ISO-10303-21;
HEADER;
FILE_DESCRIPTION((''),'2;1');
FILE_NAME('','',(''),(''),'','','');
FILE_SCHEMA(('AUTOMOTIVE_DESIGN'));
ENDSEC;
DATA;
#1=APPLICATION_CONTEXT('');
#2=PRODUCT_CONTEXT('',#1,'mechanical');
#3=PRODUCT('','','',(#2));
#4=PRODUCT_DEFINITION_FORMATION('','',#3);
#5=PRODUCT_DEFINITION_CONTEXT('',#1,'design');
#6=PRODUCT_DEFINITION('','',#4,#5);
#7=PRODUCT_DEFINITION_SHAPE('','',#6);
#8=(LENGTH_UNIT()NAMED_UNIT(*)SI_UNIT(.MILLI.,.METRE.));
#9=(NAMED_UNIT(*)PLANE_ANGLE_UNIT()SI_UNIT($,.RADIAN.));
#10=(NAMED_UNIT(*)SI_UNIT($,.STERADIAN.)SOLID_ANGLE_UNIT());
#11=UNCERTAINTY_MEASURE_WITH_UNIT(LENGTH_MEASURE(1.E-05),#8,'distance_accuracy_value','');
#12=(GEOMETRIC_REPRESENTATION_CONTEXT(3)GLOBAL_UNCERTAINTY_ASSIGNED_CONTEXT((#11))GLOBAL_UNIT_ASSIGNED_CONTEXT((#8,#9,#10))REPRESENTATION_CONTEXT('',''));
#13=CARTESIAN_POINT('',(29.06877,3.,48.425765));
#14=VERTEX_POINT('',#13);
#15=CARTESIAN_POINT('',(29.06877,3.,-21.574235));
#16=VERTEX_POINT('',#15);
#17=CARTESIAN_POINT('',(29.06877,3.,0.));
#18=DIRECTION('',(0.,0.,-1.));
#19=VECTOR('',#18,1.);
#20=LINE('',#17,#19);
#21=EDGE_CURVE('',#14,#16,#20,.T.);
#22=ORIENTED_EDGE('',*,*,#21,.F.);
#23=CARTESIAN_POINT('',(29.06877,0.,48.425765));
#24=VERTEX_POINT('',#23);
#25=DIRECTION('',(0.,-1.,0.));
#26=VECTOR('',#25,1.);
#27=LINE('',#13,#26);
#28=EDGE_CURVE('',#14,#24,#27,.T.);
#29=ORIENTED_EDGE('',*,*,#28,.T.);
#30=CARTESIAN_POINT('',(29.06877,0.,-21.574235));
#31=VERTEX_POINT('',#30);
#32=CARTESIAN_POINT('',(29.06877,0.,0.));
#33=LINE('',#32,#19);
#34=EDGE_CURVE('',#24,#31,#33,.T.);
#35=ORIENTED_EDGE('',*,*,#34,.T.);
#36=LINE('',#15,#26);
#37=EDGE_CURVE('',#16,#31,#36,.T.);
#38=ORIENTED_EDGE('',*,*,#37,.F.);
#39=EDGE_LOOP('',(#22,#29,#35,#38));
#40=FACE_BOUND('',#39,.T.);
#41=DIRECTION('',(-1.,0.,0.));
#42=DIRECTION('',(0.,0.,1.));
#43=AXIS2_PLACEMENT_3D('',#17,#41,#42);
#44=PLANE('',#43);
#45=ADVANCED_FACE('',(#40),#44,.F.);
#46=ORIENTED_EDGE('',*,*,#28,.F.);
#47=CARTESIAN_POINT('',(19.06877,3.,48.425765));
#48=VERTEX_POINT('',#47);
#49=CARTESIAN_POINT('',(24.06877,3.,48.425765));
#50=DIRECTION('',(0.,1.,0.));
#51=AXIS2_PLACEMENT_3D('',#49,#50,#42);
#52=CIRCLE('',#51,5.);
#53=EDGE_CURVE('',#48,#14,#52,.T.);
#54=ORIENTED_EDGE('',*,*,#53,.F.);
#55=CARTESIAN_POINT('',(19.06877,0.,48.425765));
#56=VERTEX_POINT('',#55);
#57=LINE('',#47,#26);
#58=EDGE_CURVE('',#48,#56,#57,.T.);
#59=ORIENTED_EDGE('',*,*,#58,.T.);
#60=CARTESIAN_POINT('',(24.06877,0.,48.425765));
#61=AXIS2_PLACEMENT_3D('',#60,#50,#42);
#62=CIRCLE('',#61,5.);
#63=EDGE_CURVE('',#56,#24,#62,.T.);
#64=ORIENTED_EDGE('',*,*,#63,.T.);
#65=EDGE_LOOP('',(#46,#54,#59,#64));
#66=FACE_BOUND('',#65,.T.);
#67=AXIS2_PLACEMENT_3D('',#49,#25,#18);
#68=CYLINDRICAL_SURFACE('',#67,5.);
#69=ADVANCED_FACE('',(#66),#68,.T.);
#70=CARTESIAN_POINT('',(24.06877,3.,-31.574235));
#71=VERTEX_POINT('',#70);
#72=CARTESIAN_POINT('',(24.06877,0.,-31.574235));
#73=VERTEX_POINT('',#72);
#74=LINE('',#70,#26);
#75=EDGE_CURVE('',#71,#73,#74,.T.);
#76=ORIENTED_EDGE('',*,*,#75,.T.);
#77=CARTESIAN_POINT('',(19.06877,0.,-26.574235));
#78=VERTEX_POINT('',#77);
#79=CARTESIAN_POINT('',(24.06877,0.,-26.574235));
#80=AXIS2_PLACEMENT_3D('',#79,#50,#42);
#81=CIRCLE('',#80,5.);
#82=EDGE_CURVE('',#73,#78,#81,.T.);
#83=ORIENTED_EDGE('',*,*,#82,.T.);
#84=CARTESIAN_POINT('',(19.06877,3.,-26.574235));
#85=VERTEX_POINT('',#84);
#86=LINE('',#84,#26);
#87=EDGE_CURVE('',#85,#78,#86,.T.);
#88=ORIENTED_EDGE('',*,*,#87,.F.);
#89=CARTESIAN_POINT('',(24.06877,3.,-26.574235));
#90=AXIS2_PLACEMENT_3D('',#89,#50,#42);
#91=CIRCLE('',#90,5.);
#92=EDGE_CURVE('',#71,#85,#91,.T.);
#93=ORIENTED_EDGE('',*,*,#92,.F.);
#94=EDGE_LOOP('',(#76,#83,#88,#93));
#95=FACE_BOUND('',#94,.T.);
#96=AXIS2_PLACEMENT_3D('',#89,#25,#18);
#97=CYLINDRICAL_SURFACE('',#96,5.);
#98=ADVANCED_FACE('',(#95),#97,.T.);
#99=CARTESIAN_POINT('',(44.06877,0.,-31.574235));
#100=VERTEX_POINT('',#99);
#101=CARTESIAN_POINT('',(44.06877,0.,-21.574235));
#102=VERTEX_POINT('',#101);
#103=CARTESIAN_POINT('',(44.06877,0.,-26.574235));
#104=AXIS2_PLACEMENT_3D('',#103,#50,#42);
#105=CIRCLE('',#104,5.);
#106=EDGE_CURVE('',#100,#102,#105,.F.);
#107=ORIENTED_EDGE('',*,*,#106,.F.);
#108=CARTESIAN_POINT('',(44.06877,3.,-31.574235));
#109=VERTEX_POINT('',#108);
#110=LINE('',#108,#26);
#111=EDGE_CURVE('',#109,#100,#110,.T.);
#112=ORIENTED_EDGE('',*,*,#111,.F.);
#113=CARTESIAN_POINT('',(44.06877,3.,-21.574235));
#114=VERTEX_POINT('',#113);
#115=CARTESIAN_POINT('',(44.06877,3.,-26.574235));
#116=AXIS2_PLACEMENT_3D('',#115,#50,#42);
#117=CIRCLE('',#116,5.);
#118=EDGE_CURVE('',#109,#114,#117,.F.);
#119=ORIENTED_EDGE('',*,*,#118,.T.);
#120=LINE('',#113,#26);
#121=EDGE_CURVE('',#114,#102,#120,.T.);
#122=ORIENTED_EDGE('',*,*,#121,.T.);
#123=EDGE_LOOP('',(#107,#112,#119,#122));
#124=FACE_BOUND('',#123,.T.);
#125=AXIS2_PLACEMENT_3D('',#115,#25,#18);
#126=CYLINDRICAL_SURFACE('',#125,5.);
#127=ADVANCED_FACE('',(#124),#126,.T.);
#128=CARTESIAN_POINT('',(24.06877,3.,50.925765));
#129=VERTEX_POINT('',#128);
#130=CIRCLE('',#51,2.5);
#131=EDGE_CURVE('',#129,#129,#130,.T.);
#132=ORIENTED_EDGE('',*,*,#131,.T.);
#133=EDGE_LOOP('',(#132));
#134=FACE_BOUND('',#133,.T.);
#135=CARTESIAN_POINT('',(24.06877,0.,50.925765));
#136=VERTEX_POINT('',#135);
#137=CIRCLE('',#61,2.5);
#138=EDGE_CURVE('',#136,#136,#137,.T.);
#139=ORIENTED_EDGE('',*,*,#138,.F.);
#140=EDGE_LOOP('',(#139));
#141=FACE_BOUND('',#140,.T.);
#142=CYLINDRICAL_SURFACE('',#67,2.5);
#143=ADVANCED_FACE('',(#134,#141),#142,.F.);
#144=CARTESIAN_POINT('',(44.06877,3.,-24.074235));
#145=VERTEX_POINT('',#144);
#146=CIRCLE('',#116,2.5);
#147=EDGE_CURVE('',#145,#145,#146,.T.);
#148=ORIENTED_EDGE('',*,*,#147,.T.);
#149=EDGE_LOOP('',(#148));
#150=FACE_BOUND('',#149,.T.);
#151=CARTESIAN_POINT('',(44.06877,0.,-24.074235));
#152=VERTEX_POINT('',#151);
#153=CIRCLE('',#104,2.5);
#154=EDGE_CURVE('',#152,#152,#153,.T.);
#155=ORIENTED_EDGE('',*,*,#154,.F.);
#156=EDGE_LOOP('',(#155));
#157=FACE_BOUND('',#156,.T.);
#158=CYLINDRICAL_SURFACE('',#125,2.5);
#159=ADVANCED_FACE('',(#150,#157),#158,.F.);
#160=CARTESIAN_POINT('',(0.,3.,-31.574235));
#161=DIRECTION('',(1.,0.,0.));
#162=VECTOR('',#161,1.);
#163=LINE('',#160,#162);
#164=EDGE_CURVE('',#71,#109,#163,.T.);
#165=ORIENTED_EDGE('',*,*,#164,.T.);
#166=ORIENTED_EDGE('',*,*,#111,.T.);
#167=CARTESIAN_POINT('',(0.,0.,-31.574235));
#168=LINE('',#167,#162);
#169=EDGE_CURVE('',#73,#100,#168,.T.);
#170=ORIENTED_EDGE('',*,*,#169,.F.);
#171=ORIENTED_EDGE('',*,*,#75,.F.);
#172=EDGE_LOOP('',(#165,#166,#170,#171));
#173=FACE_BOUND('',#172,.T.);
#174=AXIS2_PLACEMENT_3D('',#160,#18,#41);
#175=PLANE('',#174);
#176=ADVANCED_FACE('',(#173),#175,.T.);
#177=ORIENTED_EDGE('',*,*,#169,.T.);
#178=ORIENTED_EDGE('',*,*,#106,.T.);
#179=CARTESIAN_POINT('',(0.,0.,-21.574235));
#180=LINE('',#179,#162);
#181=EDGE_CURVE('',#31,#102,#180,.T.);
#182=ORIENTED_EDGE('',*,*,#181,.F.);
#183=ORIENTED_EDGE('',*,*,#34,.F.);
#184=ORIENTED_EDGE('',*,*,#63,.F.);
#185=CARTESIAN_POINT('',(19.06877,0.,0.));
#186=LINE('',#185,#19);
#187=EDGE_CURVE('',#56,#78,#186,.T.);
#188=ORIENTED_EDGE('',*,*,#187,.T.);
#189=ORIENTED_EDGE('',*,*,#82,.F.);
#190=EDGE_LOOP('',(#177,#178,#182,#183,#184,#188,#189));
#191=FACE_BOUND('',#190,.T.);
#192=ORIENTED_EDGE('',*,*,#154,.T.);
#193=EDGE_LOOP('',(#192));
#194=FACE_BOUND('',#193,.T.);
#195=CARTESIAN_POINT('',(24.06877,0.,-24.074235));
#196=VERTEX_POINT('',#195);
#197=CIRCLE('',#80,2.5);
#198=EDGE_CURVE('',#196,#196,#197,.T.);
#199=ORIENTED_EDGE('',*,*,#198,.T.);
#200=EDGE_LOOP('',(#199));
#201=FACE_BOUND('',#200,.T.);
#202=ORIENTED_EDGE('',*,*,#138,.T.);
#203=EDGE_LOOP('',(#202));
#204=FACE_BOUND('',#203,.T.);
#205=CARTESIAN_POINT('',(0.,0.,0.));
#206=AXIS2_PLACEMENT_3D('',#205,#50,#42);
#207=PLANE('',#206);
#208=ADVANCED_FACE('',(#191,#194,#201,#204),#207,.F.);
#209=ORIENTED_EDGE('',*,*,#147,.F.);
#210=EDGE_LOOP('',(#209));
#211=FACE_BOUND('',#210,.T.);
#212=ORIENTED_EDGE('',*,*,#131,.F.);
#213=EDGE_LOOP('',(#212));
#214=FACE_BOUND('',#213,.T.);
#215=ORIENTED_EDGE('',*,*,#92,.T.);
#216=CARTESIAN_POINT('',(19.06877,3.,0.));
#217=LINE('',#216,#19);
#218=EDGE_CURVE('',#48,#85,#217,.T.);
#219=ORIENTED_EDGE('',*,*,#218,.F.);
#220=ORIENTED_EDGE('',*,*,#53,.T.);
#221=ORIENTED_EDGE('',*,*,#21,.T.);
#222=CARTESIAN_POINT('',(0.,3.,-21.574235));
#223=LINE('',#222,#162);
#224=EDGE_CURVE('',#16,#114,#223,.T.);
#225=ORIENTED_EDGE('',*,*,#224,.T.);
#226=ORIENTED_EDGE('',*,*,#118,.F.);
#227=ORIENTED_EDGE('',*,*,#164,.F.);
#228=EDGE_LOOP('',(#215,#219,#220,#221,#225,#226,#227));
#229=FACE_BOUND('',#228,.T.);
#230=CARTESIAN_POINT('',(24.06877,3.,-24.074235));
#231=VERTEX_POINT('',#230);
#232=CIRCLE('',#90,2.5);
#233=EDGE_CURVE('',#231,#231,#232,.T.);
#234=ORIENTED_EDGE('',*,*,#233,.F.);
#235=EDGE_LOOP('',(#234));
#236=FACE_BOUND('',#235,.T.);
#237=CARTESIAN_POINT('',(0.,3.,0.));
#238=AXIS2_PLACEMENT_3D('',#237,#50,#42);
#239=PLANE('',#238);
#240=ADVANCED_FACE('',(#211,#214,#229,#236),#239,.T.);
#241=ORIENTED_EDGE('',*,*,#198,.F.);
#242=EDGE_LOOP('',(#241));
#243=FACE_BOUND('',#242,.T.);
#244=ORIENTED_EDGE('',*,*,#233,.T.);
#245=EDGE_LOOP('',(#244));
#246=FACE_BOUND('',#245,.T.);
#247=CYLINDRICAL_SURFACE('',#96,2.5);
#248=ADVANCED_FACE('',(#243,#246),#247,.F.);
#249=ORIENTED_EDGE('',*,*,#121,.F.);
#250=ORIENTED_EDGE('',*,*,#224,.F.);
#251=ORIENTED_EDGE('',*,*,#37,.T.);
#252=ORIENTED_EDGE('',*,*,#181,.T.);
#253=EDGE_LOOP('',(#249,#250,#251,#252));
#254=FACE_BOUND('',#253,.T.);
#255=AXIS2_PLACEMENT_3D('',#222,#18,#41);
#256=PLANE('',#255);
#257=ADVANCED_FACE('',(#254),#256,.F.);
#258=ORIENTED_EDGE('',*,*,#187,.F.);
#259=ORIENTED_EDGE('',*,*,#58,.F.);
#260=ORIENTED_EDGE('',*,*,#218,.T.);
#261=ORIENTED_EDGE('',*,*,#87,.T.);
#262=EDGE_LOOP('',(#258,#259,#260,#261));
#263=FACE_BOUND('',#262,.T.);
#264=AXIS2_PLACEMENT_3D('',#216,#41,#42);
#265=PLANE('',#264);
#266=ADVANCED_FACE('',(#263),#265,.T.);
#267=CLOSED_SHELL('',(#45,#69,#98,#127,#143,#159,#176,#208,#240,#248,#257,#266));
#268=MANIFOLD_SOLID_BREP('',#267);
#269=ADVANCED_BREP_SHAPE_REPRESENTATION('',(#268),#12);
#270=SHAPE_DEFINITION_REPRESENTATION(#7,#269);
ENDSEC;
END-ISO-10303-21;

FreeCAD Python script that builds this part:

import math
import FreeCAD as App
import Part
import Sketcher
from FreeCAD import Vector

doc = App.newDocument("Part")
body = doc.addObject("PartDesign::Body", "Body")

sketch1 = body.newObject("Sketcher::SketchObject", "Sketch")
sketch1.AttachmentSupport = (doc.getObject("XZ_Plane"), [""])
sketch1.MapMode = "FlatFace"
sketch1.addGeometry(Part.LineSegment(Vector(19.06877, -26.574235, 0), Vector(19.06877, 48.425765, 0)), False)
sketch1.addGeometry(Part.ArcOfCircle(Part.Circle(Vector(24.06877, 48.425765, 0), Vector(0, 0, 1), 5), math.radians(0), math.radians(180)), False)
sketch1.addGeometry(Part.LineSegment(Vector(29.06877, 48.425765, 0), Vector(29.06877, -21.574235, 0)), False)
sketch1.addGeometry(Part.LineSegment(Vector(29.06877, -21.574235, 0), Vector(44.06877, -21.574235, 0)), False)
sketch1.addGeometry(Part.ArcOfCircle(Part.Circle(Vector(44.06877, -26.574235, 0), Vector(0, 0, 1), 5), math.radians(-90), math.radians(90)), False)
sketch1.addGeometry(Part.LineSegment(Vector(44.06877, -31.574235, 0), Vector(24.06877, -31.574235, 0)), False)
sketch1.addGeometry(Part.ArcOfCircle(Part.Circle(Vector(24.06877, -26.574235, 0), Vector(0, 0, 1), 5), math.radians(180), math.radians(270)), False)
sketch1.addGeometry(Part.ArcOfCircle(Part.Circle(Vector(24.06877, -26.574235, 0), Vector(0, 0, 1), 2.5), math.radians(90), math.radians(180)), False)
sketch1.addGeometry(Part.ArcOfCircle(Part.Circle(Vector(24.06877, -26.574235, 0), Vector(0, 0, 1), 2.5), math.radians(180), math.radians(270)), False)
sketch1.addGeometry(Part.ArcOfCircle(Part.Circle(Vector(24.06877, -26.574235, 0), Vector(0, 0, 1), 2.5), math.radians(-90), math.radians(0)), False)
sketch1.addGeometry(Part.ArcOfCircle(Part.Circle(Vector(24.06877, -26.574235, 0), Vector(0, 0, 1), 2.5), math.radians(0), math.radians(90)), False)
sketch1.addGeometry(Part.Circle(Vector(24.06877, 48.425765, 0), Vector(0, 0, 1), 2.5), False)
sketch1.addGeometry(Part.Circle(Vector(44.06877, -26.574235, 0), Vector(0, 0, 1), 2.5), False)
sketch1.addConstraint(Sketcher.Constraint("Tangent", 0, 2, 1, 2))
sketch1.addConstraint(Sketcher.Constraint("Tangent", 1, 1, 2, 1))
sketch1.addConstraint(Sketcher.Constraint("Coincident", 2, 2, 3, 1))
sketch1.addConstraint(Sketcher.Constraint("Tangent", 3, 2, 4, 2))
sketch1.addConstraint(Sketcher.Constraint("Tangent", 4, 1, 5, 1))
sketch1.addConstraint(Sketcher.Constraint("Tangent", 5, 2, 6, 2))
sketch1.addConstraint(Sketcher.Constraint("Tangent", 6, 1, 0, 1))
sketch1.addConstraint(Sketcher.Constraint("Tangent", 7, 2, 8, 1))
sketch1.addConstraint(Sketcher.Constraint("Tangent", 8, 2, 9, 1))
sketch1.addConstraint(Sketcher.Constraint("Tangent", 9, 2, 10, 1))
sketch1.addConstraint(Sketcher.Constraint("Tangent", 10, 2, 7, 1))
sketch1.addConstraint(Sketcher.Constraint("Vertical", 0))
sketch1.addConstraint(Sketcher.Constraint("Vertical", 2))
sketch1.addConstraint(Sketcher.Constraint("Horizontal", 3))
sketch1.addConstraint(Sketcher.Constraint("Horizontal", 5))
sketch1.addConstraint(Sketcher.Constraint("Coincident", 7, 3, 6, 3))
sketch1.addConstraint(Sketcher.Constraint("Coincident", 11, 3, 1, 3))
sketch1.addConstraint(Sketcher.Constraint("Coincident", 12, 3, 4, 3))
sketch1.addConstraint(Sketcher.Constraint("Equal", 1, 4))
sketch1.addConstraint(Sketcher.Constraint("Equal", 4, 6))
sketch1.addConstraint(Sketcher.Constraint("Equal", 7, 8))
sketch1.addConstraint(Sketcher.Constraint("Equal", 10, 11))
sketch1.addConstraint(Sketcher.Constraint("Equal", 11, 12))
sketch1.addConstraint(Sketcher.Constraint("Horizontal", 6, 1, 7, 2))
sketch1.addConstraint(Sketcher.Constraint("Horizontal", 7, 2, 9, 2))
sketch1.addConstraint(Sketcher.Constraint("Vertical", 5, 2, 8, 2))
sketch1.addConstraint(Sketcher.Constraint("Vertical", 8, 2, 10, 2))
sketch1.addConstraint(Sketcher.Constraint("Diameter", 11, 5.0))
sketch1.addConstraint(Sketcher.Constraint("Radius", 1, 5.0))
sketch1.addConstraint(Sketcher.Constraint("DistanceX", 3, 1, 3, 2, 15.0))
sketch1.addConstraint(Sketcher.Constraint("DistanceY", 0, 1, 0, 2, 75.0))
sketch1.addConstraint(Sketcher.Constraint("DistanceX", -1, 1, 1, 3, 24.06877))
sketch1.addConstraint(Sketcher.Constraint("DistanceY", -1, 1, 1, 3, 48.425765))
pad1 = body.newObject("PartDesign::Pad", "Pad")
pad1.Profile = sketch1
pad1.Length = 3
pad1.Reversed = True

doc.recompute()
